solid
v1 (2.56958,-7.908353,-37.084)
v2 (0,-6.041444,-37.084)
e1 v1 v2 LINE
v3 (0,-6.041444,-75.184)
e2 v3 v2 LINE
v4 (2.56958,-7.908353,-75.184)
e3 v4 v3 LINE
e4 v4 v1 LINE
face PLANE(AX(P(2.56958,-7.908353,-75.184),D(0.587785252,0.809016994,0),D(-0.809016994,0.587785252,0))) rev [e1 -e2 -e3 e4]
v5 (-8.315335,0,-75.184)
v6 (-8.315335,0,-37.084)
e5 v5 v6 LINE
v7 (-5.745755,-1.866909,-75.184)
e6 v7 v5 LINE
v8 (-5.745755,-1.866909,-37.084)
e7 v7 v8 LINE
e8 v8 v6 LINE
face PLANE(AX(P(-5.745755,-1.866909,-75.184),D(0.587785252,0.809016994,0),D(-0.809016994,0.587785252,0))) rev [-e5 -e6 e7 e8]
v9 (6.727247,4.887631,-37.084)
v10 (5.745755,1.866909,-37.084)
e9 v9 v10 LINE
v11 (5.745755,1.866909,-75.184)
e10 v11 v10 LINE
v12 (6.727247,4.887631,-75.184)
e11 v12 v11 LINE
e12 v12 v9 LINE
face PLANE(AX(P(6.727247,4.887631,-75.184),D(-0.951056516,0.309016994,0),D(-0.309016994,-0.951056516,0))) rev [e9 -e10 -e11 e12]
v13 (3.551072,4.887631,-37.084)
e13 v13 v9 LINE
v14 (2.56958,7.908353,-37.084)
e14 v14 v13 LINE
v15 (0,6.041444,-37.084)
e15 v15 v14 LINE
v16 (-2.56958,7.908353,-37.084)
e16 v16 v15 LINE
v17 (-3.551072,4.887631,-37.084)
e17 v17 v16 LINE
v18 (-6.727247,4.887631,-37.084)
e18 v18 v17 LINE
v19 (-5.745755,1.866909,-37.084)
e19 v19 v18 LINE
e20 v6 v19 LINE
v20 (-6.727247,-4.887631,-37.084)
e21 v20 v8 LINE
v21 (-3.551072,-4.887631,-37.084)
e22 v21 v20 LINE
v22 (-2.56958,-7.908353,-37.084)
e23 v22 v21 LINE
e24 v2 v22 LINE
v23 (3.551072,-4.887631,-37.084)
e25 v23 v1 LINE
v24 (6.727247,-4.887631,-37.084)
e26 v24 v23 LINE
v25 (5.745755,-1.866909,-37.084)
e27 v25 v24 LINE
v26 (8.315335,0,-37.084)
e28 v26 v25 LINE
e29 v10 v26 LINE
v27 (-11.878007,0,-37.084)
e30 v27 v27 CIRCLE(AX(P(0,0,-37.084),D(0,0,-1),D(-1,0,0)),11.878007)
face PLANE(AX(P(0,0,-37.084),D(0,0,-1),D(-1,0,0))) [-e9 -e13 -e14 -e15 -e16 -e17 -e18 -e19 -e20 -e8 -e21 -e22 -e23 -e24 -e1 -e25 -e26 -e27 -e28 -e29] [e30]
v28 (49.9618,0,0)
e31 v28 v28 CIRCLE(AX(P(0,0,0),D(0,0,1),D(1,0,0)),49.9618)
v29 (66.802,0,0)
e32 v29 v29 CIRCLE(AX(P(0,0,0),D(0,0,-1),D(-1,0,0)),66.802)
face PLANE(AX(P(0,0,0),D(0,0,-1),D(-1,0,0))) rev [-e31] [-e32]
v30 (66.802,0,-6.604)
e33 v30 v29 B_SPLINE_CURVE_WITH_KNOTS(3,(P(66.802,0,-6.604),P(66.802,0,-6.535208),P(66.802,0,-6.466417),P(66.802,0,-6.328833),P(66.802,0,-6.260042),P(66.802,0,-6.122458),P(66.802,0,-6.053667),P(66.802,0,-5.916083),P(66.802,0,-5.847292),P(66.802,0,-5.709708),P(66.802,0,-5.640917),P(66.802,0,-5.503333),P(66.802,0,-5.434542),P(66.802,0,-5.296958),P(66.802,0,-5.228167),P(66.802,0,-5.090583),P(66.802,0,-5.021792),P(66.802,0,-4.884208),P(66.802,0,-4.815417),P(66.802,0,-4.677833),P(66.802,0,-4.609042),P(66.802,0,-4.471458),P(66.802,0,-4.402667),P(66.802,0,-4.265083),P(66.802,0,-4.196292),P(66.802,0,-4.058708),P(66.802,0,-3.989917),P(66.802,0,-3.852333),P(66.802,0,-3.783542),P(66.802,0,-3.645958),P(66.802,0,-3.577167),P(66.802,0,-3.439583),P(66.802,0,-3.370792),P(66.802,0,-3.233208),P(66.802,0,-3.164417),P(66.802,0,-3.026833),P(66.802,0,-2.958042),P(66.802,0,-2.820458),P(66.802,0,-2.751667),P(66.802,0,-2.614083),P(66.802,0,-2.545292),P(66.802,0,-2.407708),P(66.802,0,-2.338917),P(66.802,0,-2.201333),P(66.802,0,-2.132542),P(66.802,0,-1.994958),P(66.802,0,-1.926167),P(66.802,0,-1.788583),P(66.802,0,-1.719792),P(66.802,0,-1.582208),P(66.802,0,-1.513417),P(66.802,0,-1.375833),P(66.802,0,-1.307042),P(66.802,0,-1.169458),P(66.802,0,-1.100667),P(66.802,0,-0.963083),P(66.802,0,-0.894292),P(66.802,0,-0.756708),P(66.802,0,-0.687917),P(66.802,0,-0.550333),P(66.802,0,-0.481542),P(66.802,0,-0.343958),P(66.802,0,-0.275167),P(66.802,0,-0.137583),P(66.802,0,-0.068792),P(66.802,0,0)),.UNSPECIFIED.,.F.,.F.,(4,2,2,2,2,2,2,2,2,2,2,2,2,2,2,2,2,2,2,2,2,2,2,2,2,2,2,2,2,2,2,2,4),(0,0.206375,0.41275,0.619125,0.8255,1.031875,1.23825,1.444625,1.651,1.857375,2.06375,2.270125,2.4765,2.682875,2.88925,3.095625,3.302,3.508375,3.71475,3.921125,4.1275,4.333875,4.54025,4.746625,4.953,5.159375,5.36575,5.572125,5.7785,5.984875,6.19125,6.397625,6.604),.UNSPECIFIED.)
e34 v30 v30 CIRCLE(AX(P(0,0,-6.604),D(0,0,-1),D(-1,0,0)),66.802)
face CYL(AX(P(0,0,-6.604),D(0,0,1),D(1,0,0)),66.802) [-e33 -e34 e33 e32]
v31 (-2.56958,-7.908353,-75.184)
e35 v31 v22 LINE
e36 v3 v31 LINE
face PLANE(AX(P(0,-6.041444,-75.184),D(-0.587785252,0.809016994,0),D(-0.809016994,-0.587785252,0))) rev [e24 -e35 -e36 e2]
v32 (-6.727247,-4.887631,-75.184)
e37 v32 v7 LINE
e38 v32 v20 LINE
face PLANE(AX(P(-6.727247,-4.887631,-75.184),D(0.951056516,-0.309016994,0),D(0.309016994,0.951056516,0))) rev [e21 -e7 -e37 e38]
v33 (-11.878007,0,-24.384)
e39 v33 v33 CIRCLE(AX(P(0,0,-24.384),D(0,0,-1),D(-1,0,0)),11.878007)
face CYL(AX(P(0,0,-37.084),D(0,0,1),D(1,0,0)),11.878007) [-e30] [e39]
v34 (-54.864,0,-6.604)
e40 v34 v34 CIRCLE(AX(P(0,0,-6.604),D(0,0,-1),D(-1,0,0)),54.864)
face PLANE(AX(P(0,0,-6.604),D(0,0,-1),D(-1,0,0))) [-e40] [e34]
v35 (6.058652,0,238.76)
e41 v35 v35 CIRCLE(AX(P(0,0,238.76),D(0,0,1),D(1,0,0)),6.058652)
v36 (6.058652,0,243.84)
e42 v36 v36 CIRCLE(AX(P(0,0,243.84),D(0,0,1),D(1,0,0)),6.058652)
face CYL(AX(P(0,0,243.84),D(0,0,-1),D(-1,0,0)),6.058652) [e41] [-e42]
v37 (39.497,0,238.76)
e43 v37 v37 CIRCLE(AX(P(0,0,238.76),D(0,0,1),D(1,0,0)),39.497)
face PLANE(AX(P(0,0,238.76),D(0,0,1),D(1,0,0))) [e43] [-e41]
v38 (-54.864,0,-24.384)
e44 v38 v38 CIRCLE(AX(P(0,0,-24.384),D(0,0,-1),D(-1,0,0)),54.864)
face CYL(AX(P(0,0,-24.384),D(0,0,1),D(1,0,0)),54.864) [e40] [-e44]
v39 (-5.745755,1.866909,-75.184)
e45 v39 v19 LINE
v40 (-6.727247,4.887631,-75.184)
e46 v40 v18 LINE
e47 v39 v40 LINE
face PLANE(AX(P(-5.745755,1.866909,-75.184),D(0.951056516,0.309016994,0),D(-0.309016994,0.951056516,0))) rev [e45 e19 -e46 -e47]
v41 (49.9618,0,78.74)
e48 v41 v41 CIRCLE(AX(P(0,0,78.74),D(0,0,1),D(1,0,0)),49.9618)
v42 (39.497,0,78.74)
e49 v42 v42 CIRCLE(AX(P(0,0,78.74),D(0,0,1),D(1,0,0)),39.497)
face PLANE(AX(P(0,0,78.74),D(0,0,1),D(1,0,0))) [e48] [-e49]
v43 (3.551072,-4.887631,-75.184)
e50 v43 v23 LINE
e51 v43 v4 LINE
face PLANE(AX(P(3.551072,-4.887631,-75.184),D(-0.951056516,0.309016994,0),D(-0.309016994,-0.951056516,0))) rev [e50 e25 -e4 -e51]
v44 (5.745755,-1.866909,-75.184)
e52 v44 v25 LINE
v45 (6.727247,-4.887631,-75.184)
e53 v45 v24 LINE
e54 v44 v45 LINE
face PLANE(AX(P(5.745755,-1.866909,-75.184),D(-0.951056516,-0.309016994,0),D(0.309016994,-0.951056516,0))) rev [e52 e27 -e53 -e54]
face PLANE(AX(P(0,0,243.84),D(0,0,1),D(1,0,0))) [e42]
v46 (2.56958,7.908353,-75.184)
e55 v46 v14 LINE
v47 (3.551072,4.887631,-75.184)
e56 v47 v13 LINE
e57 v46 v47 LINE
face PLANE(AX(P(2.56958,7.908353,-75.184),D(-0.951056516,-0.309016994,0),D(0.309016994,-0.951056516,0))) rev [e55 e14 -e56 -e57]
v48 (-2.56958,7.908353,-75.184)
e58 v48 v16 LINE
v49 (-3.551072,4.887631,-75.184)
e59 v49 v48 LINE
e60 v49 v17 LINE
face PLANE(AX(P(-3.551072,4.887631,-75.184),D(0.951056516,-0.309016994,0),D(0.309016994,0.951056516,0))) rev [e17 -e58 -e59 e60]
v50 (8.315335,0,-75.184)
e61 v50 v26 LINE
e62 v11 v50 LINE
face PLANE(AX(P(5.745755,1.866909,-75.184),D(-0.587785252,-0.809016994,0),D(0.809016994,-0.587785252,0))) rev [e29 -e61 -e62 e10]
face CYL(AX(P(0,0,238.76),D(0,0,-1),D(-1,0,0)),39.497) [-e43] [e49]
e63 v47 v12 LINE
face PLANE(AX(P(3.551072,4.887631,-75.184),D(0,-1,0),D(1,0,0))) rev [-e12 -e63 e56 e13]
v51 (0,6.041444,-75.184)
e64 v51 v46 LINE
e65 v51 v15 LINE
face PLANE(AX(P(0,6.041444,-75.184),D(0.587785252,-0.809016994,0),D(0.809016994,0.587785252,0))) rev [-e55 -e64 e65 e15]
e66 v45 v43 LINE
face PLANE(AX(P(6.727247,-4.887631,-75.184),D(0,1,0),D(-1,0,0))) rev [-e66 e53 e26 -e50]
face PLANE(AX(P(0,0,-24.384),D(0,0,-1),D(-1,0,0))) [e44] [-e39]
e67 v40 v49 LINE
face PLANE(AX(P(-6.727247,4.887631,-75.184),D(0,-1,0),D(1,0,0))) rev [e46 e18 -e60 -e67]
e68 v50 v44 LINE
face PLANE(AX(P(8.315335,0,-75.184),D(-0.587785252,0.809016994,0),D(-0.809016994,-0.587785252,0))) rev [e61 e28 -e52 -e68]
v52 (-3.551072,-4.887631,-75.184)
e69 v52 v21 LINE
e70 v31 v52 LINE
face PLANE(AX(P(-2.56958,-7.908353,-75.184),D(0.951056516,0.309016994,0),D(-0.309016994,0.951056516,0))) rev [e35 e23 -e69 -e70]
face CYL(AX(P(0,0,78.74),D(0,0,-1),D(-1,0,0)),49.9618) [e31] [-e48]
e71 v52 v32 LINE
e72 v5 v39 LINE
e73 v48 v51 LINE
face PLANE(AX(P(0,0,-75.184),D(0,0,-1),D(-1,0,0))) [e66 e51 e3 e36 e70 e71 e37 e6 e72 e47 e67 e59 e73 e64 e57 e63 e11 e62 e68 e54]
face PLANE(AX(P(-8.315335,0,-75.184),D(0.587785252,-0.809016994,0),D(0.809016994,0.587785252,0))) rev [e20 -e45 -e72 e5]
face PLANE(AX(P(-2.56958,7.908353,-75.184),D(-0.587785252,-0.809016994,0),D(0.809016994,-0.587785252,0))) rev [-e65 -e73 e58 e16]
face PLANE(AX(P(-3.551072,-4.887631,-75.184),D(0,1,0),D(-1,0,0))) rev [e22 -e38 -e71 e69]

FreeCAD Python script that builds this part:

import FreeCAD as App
import Part
import Sketcher
Q = App.Units.Quantity


def add_polygon(sketch, points):
    """Adds a closed chain of lines whose ends are joined by coincident constraints."""
    first, n = sketch.GeometryCount, len(points)
    for a, b in zip(points, points[1:] + points[:1]):
        sketch.addGeometry(Part.LineSegment(App.Vector(*a, 0), App.Vector(*b, 0)), False)
    for i in range(n):
        sketch.addConstraint(Sketcher.Constraint("Coincident", first + i, 2, first + (i + 1) % n, 1))

doc = App.newDocument("Part")
body = doc.addObject("PartDesign::Body", "Body")

# Sketch on XY plane
sketch1 = body.newObject("Sketcher::SketchObject", "Sketch")
sketch1.AttachmentSupport = (doc.getObject("XY_Plane"), [""])
sketch1.MapMode = "FlatFace"
sketch1.addGeometry(Part.Circle(App.Vector(0, 0, 0), App.Vector(0, 0, 1), 50), False)
sketch1.addConstraint([
    Sketcher.Constraint("Coincident", 0, 3, -1, 1),
    Sketcher.Constraint("Diameter", 0, Q("3.934 in")),
])
pad1 = body.newObject("PartDesign::Pad", "Pad")
pad1.Profile = sketch1
pad1.Length = Q("3.1 in")

# Sketch on XY plane
sketch2 = body.newObject("Sketcher::SketchObject", "Sketch001")
sketch2.AttachmentSupport = (doc.getObject("XY_Plane"), [""])
sketch2.MapMode = "FlatFace"
sketch2.addGeometry(Part.Circle(App.Vector(0, 0, 0), App.Vector(0, 0, 1), 67), False)
sketch2.addConstraint([
    Sketcher.Constraint("Coincident", 0, 3, -1, 1),
    Sketcher.Constraint("Diameter", 0, Q("5.26 in")),
])
pad2 = body.newObject("PartDesign::Pad", "Pad001")
pad2.Profile = sketch2
pad2.Length = Q("0.26 in")
pad2.Reversed = True

# Sketch on XY plane
sketch3 = body.newObject("Sketcher::SketchObject", "Sketch002")
sketch3.AttachmentSupport = (doc.getObject("XY_Plane"), [""])
sketch3.MapMode = "FlatFace"
sketch3.AttachmentOffset = App.Placement(App.Vector(0, 0, -0.26 * 25.4), App.Rotation())
sketch3.addGeometry(Part.Circle(App.Vector(0, 0, 0), App.Vector(0, 0, 1), 55), False)
sketch3.addConstraint([
    Sketcher.Constraint("Coincident", 0, 3, -1, 1),
    Sketcher.Constraint("Diameter", 0, Q("4.32 in")),
])
pad3 = body.newObject("PartDesign::Pad", "Pad002")
pad3.Profile = sketch3
pad3.Length = Q("0.7 in")
pad3.Reversed = True

# Sketch on XY plane
sketch4 = body.newObject("Sketcher::SketchObject", "Sketch003")
sketch4.AttachmentSupport = (doc.getObject("XY_Plane"), [""])
sketch4.MapMode = "FlatFace"
sketch4.AttachmentOffset = App.Placement(App.Vector(0, 0, -0.96 * 25.4), App.Rotation())
sketch4.addGeometry(Part.Circle(App.Vector(0, 0, 0), App.Vector(0, 0, 1), 12), False)
sketch4.addConstraint([
    Sketcher.Constraint("Coincident", 0, 3, -1, 1),
    Sketcher.Constraint("Diameter", 0, Q("23.756013 mm")),
])
pad4 = body.newObject("PartDesign::Pad", "Pad003")
pad4.Profile = sketch4
pad4.Length = Q("0.5 in")
pad4.Reversed = True

# Sketch on XY plane
sketch5 = body.newObject("Sketcher::SketchObject", "Sketch004")
sketch5.AttachmentSupport = (doc.getObject("XY_Plane"), [""])
sketch5.MapMode = "FlatFace"
sketch5.AttachmentOffset = App.Placement(App.Vector(0, 0, -1.46 * 25.4), App.Rotation())
add_polygon(sketch5, [(-8.3, 0), (-5.7, 1.9), (-6.7, 4.9), (-3.6, 4.9), (-2.6, 7.9), (0, 6), (2.6, 7.9), (3.6, 4.9), (6.7, 4.9), (5.7, 1.9), (8.3, 0), (5.7, -1.9), (6.7, -4.9), (3.6, -4.9), (2.6, -7.9), (0, -6), (-2.6, -7.9), (-3.6, -4.9), (-6.7, -4.9), (-5.7, -1.9)])  # lines 0-19
sketch5.addConstraint([
    Sketcher.Constraint("Horizontal", 2),
    Sketcher.Constraint("Horizontal", 7),
    Sketcher.Constraint("Horizontal", 12),
    Sketcher.Constraint("Horizontal", 17),
    Sketcher.Constraint("Symmetric", 0, 2, 10, 2, -1, 1),
    Sketcher.Constraint("Symmetric", 1, 2, 11, 2, -1, 1),
    Sketcher.Constraint("Symmetric", 3, 2, 13, 2, -1, 1),
    Sketcher.Constraint("Symmetric", 4, 2, 14, 2, -1, 1),
    Sketcher.Constraint("Symmetric", 5, 2, 15, 2, -1, 1),
    Sketcher.Constraint("Symmetric", 6, 2, 16, 2, -1, 1),
    Sketcher.Constraint("Symmetric", 8, 2, 18, 2, -1, 1),
    Sketcher.Constraint("Symmetric", 9, 2, 19, 2, -1, 1),
    Sketcher.Constraint("Symmetric", 3, 2, 5, 2, -2),
    Sketcher.Constraint("Symmetric", 2, 2, 6, 2, -2),
    Sketcher.Constraint("Symmetric", 0, 2, 8, 2, -2),
    Sketcher.Constraint("PointOnObject", 4, 2, -2),
    Sketcher.Constraint("PointOnObject", 9, 2, -1),
    Sketcher.Constraint("Parallel", 0, 5),
    Sketcher.Constraint("Parallel", 1, 6),
    Sketcher.Constraint("Parallel", 3, 8),
    Sketcher.Constraint("Parallel", 8, 13),
    Sketcher.Constraint("Parallel", 13, 18),
    Sketcher.Constraint("Equal", 0, 1),
    Sketcher.Constraint("Equal", 1, 3),
    Sketcher.Constraint("Equal", 3, 4),
    Sketcher.Constraint("Angle", 0, Q("36 deg")),
    Sketcher.Constraint("Angle", 1, Q("108 deg")),
    Sketcher.Constraint("DistanceX", 2, 1, 2, 2, Q("3.176175 mm")),
    Sketcher.Constraint("DistanceY", -1, 1, 0, 2, Q("1.866909 mm")),
])
pad5 = body.newObject("PartDesign::Pad", "Pad004")
pad5.Profile = sketch5
pad5.Length = Q("1.5 in")
pad5.Reversed = True

# Sketch on XY plane
sketch6 = body.newObject("Sketcher::SketchObject", "Sketch005")
sketch6.AttachmentSupport = (doc.getObject("XY_Plane"), [""])
sketch6.MapMode = "FlatFace"
sketch6.AttachmentOffset = App.Placement(App.Vector(0, 0, 3.1 * 25.4), App.Rotation())
sketch6.addGeometry(Part.Circle(App.Vector(0, 0, 0), App.Vector(0, 0, 1), 39), False)
sketch6.addConstraint([
    Sketcher.Constraint("Coincident", 0, 3, -1, 1),
    Sketcher.Constraint("Diameter", 0, Q("3.11 in")),
])
pad6 = body.newObject("PartDesign::Pad", "Pad005")
pad6.Profile = sketch6
pad6.Length = Q("6.3 in")

# Sketch on XY plane
sketch7 = body.newObject("Sketcher::SketchObject", "Sketch006")
sketch7.AttachmentSupport = (doc.getObject("XY_Plane"), [""])
sketch7.MapMode = "FlatFace"
sketch7.AttachmentOffset = App.Placement(App.Vector(0, 0, 9.4 * 25.4), App.Rotation())
sketch7.addGeometry(Part.Circle(App.Vector(0, 0, 0), App.Vector(0, 0, 1), 6), False)
sketch7.addConstraint([
    Sketcher.Constraint("Coincident", 0, 3, -1, 1),
    Sketcher.Constraint("Diameter", 0, Q("12.117304 mm")),
])
pad7 = body.newObject("PartDesign::Pad", "Pad006")
pad7.Profile = sketch7
pad7.Length = Q("0.2 in")

doc.recompute()
